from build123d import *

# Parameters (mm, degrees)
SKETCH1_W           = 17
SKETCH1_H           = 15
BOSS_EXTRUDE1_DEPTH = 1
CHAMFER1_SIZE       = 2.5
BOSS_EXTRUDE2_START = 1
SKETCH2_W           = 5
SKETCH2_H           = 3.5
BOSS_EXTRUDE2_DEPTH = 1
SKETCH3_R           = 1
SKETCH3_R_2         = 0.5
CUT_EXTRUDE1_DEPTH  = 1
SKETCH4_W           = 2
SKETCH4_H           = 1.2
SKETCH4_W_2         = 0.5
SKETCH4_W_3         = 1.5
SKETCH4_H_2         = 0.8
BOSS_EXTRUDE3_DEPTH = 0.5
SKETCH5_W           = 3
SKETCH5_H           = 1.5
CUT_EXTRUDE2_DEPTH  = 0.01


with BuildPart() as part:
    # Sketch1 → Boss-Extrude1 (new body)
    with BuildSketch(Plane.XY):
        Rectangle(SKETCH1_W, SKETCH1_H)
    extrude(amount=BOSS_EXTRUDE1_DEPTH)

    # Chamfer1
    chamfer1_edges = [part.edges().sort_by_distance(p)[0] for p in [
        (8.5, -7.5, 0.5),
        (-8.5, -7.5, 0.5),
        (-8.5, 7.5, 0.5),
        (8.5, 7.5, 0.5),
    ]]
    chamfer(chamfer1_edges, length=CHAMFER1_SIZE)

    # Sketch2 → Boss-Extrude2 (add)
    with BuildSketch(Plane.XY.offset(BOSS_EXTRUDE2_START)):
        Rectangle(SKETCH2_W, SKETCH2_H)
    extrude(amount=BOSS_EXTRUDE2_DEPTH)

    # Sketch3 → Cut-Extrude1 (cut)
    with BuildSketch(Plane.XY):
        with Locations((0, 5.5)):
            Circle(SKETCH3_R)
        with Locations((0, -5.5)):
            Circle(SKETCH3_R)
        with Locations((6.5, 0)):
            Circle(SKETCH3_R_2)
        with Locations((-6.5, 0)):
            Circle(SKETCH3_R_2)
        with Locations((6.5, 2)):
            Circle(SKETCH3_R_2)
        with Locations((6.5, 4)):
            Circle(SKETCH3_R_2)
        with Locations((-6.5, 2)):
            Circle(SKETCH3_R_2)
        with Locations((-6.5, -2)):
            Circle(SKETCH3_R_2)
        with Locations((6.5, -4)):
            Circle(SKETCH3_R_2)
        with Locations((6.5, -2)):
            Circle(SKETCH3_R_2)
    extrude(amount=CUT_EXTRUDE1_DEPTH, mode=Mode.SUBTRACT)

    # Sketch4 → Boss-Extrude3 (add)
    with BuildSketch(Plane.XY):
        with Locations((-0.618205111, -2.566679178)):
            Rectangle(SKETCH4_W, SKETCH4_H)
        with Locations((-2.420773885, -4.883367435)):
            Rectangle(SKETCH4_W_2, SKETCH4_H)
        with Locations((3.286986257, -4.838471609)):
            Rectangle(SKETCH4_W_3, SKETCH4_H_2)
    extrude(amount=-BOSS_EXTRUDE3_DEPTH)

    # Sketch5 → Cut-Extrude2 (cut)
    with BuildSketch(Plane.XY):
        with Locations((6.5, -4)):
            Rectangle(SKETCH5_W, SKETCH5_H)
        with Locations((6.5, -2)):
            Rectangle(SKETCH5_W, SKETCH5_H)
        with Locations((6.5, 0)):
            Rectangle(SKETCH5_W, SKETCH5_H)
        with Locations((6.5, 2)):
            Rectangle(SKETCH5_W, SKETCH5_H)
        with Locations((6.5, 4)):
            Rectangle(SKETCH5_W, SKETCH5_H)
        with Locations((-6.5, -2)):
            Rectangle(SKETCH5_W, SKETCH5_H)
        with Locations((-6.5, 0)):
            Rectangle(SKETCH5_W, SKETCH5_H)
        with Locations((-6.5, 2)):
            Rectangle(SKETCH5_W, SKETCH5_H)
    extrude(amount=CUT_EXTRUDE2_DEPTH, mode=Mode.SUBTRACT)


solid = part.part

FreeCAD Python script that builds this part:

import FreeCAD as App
import Part
import Sketcher
from FreeCAD import Vector
Q = App.Units.Quantity


def edges_at(feature, points):
    """Names of the edges that pass closest to the given points."""
    edges = feature.Shape.Edges
    near = lambda p: min(range(len(edges)), key=lambda i: edges[i].distToShape(Part.Vertex(*p))[0])
    return sorted({f"Edge{near(p) + 1}" for p in points})


def add_polygon(sketch, points):
    """Adds a closed chain of lines whose ends are joined by coincident constraints."""
    first, n = sketch.GeometryCount, len(points)
    for a, b in zip(points, points[1:] + points[:1]):
        sketch.addGeometry(Part.LineSegment(App.Vector(*a, 0), App.Vector(*b, 0)), False)
    for i in range(n):
        sketch.addConstraint(Sketcher.Constraint("Coincident", first + i, 2, first + (i + 1) % n, 1))

doc = App.newDocument("Part")
params = doc.addObject("Spreadsheet::Sheet", "Params")
for row, (alias, value) in enumerate([
    ("sketch1_width", "17 mm"),
    ("sketch1_height", "15 mm"),
    ("pad1_length", "1 mm"),
    ("chamfer_size", "2.5 mm"),
    ("sketch2_width", "5 mm"),
    ("sketch2_height", "3.5 mm"),
    ("pad2_length", "1 mm"),
    ("sketch3_diameter", "2 mm"),
    ("sketch3_diameter2", "1 mm"),
    ("pocket1_length", "1 mm"),
    ("sketch4_width", "2 mm"),
    ("sketch4_width2", "0.5 mm"),
    ("sketch4_width3", "1.5 mm"),
    ("sketch4_height", "1.2 mm"),
    ("sketch4_height2", "0.8 mm"),
    ("pad3_length", "0.5 mm"),
    ("sketch5_width", "3 mm"),
    ("sketch5_height", "1.5 mm"),
    ("pocket2_length", "0.01 mm"),
], start=1):
    params.set(f"A{row}", alias)
    params.set(f"B{row}", "=" + value)
    params.setAlias(f"B{row}", alias)

body = doc.addObject("PartDesign::Body", "Body")

# Sketch on XY plane
sketch1 = body.newObject("Sketcher::SketchObject", "Sketch")
sketch1.AttachmentSupport = (doc.getObject("XY_Plane"), [""])
sketch1.MapMode = "FlatFace"
add_polygon(sketch1, [(-8.5, 7.5), (-8.5, -7.5), (8.5, -7.5), (8.5, 7.5)])  # lines 0-3
sketch1.addConstraint(Sketcher.Constraint("Vertical", 0))
sketch1.addConstraint(Sketcher.Constraint("Horizontal", 1))
sketch1.addConstraint(Sketcher.Constraint("Vertical", 2))
sketch1.addConstraint(Sketcher.Constraint("Horizontal", 3))
sketch1.addConstraint(Sketcher.Constraint("Symmetric", 0, 2, 2, 2, -1, 1))
sketch1.addConstraint(Sketcher.Constraint("DistanceX", 1, 1, 1, 2, Q("17 mm")))
sketch1.addConstraint(Sketcher.Constraint("DistanceY", 0, 2, 0, 1, Q("15 mm")))
sketch1.setExpression("Constraints[9]", "Params.sketch1_width")
sketch1.setExpression("Constraints[10]", "Params.sketch1_height")
pad1 = body.newObject("PartDesign::Pad", "Pad")
pad1.Profile = sketch1
pad1.setExpression("Length", "Params.pad1_length")
doc.recompute()

chamfer = body.newObject("PartDesign::Chamfer", "Chamfer")
chamfer.Base = (pad1, edges_at(pad1, [
    (8.5, -7.5, 0.5),
    (-8.5, -7.5, 0.5),
    (-8.5, 7.5, 0.5),
    (8.5, 7.5, 0.5),
]))
chamfer.setExpression("Size", "Params.chamfer_size")

# Sketch on XY plane
sketch2 = body.newObject("Sketcher::SketchObject", "Sketch001")
sketch2.AttachmentSupport = (doc.getObject("XY_Plane"), [""])
sketch2.MapMode = "FlatFace"
sketch2.AttachmentOffset = App.Placement(Vector(0, 0, 1), App.Rotation())
add_polygon(sketch2, [(-2.5, 1.75), (-2.5, -1.75), (2.5, -1.75), (2.5, 1.75)])  # lines 0-3
sketch2.addConstraint(Sketcher.Constraint("Vertical", 0))
sketch2.addConstraint(Sketcher.Constraint("Horizontal", 1))
sketch2.addConstraint(Sketcher.Constraint("Vertical", 2))
sketch2.addConstraint(Sketcher.Constraint("Horizontal", 3))
sketch2.addConstraint(Sketcher.Constraint("Symmetric", 0, 2, 2, 2, -1, 1))
sketch2.addConstraint(Sketcher.Constraint("DistanceX", 1, 1, 1, 2, Q("5 mm")))
sketch2.addConstraint(Sketcher.Constraint("DistanceY", 0, 2, 0, 1, Q("3.5 mm")))
sketch2.setExpression("Constraints[9]", "Params.sketch2_width")
sketch2.setExpression("Constraints[10]", "Params.sketch2_height")
pad2 = body.newObject("PartDesign::Pad", "Pad001")
pad2.Profile = sketch2
pad2.setExpression("Length", "Params.pad2_length")

# Sketch on XY plane
sketch3 = body.newObject("Sketcher::SketchObject", "Sketch002")
sketch3.AttachmentSupport = (doc.getObject("XY_Plane"), [""])
sketch3.MapMode = "FlatFace"
sketch3.addGeometry(Part.Circle(Vector(0, 5.5, 0), Vector(0, 0, 1), 1), False)
sketch3.addGeometry(Part.Circle(Vector(0, -5.5, 0), Vector(0, 0, 1), 1), False)
sketch3.addGeometry(Part.Circle(Vector(6.5, 0, 0), Vector(0, 0, 1), 0.5), False)
sketch3.addGeometry(Part.Circle(Vector(-6.5, 0, 0), Vector(0, 0, 1), 0.5), False)
sketch3.addGeometry(Part.Circle(Vector(6.5, 2, 0), Vector(0, 0, 1), 0.5), False)
sketch3.addGeometry(Part.Circle(Vector(6.5, 4, 0), Vector(0, 0, 1), 0.5), False)
sketch3.addGeometry(Part.Circle(Vector(-6.5, 2, 0), Vector(0, 0, 1), 0.5), False)
sketch3.addGeometry(Part.Circle(Vector(-6.5, -2, 0), Vector(0, 0, 1), 0.5), False)
sketch3.addGeometry(Part.Circle(Vector(6.5, -4, 0), Vector(0, 0, 1), 0.5), False)
sketch3.addGeometry(Part.Circle(Vector(6.5, -2, 0), Vector(0, 0, 1), 0.5), False)
sketch3.addConstraint(Sketcher.Constraint("Equal", 0, 1))
sketch3.addConstraint(Sketcher.Constraint("Equal", 2, 3))
sketch3.addConstraint(Sketcher.Constraint("Equal", 3, 4))
sketch3.addConstraint(Sketcher.Constraint("Equal", 4, 5))
sketch3.addConstraint(Sketcher.Constraint("Equal", 5, 6))
sketch3.addConstraint(Sketcher.Constraint("Equal", 6, 7))
sketch3.addConstraint(Sketcher.Constraint("Equal", 7, 8))
sketch3.addConstraint(Sketcher.Constraint("Equal", 8, 9))
sketch3.addConstraint(Sketcher.Constraint("Symmetric", 0, 3, 1, 3, -1, 1))
sketch3.addConstraint(Sketcher.Constraint("Symmetric", 2, 3, 3, 3, -1, 1))
sketch3.addConstraint(Sketcher.Constraint("Symmetric", 4, 3, 7, 3, -1, 1))
sketch3.addConstraint(Sketcher.Constraint("Symmetric", 6, 3, 9, 3, -1, 1))
sketch3.addConstraint(Sketcher.Constraint("Symmetric", 4, 3, 6, 3, -2))
sketch3.addConstraint(Sketcher.Constraint("Symmetric", 5, 3, 8, 3, -1))
sketch3.addConstraint(Sketcher.Constraint("PointOnObject", 0, 3, -2))
sketch3.addConstraint(Sketcher.Constraint("PointOnObject", 2, 3, -1))
sketch3.addConstraint(Sketcher.Constraint("Vertical", 2, 3, 4, 3))
sketch3.addConstraint(Sketcher.Constraint("Vertical", 4, 3, 5, 3))
sketch3.addConstraint(Sketcher.Constraint("Diameter", 0, Q("2 mm")))
sketch3.addConstraint(Sketcher.Constraint("Diameter", 2, Q("1 mm")))
sketch3.addConstraint(Sketcher.Constraint("DistanceY", -1, 1, 4, 3, Q("2 mm")))
sketch3.addConstraint(Sketcher.Constraint("DistanceY", -1, 1, 5, 3, Q("4 mm")))
sketch3.addConstraint(Sketcher.Constraint("DistanceY", 1, 3, 0, 3, Q("11 mm")))
sketch3.addConstraint(Sketcher.Constraint("DistanceX", 3, 3, 2, 3, Q("13 mm")))
sketch3.setExpression("Constraints[18]", "Params.sketch3_diameter")
sketch3.setExpression("Constraints[19]", "Params.sketch3_diameter2")
pocket1 = body.newObject("PartDesign::Pocket", "Pocket")
pocket1.Profile = sketch3
pocket1.setExpression("Length", "Params.pocket1_length")
pocket1.Reversed = True

# Sketch on XY plane
sketch4 = body.newObject("Sketcher::SketchObject", "Sketch003")
sketch4.AttachmentSupport = (doc.getObject("XY_Plane"), [""])
sketch4.MapMode = "FlatFace"
add_polygon(sketch4, [(-1.618205, -1.966679), (-1.618205, -3.166679), (0.381795, -3.166679), (0.381795, -1.966679)])  # lines 0-3
add_polygon(sketch4, [(-2.670774, -4.283367), (-2.670774, -5.483367), (-2.170774, -5.483367), (-2.170774, -4.283367)])  # lines 4-7
add_polygon(sketch4, [(2.536986, -4.438472), (2.536986, -5.238472), (4.036986, -5.238472), (4.036986, -4.438472)])  # lines 8-11
sketch4.addConstraint(Sketcher.Constraint("Vertical", 0))
sketch4.addConstraint(Sketcher.Constraint("Horizontal", 1))
sketch4.addConstraint(Sketcher.Constraint("Vertical", 2))
sketch4.addConstraint(Sketcher.Constraint("Horizontal", 3))
sketch4.addConstraint(Sketcher.Constraint("Vertical", 4))
sketch4.addConstraint(Sketcher.Constraint("Horizontal", 5))
sketch4.addConstraint(Sketcher.Constraint("Vertical", 6))
sketch4.addConstraint(Sketcher.Constraint("Horizontal", 7))
sketch4.addConstraint(Sketcher.Constraint("Vertical", 8))
sketch4.addConstraint(Sketcher.Constraint("Horizontal", 9))
sketch4.addConstraint(Sketcher.Constraint("Vertical", 10))
sketch4.addConstraint(Sketcher.Constraint("Horizontal", 11))
sketch4.addConstraint(Sketcher.Constraint("Equal", 2, 4))
sketch4.addConstraint(Sketcher.Constraint("DistanceX", 1, 1, 1, 2, Q("2 mm")))
sketch4.addConstraint(Sketcher.Constraint("DistanceX", 5, 1, 5, 2, Q("0.5 mm")))
sketch4.addConstraint(Sketcher.Constraint("DistanceX", 9, 1, 9, 2, Q("1.5 mm")))
sketch4.addConstraint(Sketcher.Constraint("DistanceY", 0, 2, 0, 1, Q("1.2 mm")))
sketch4.addConstraint(Sketcher.Constraint("DistanceY", 8, 2, 8, 1, Q("0.8 mm")))
sketch4.addConstraint(Sketcher.Constraint("DistanceY", 0, 2, -1, 1, Q("3.166679 mm")))
sketch4.addConstraint(Sketcher.Constraint("DistanceY", 8, 2, -1, 1, Q("5.238472 mm")))
sketch4.addConstraint(Sketcher.Constraint("DistanceX", 4, 2, 0, 2, Q("1.052569 mm")))
sketch4.addConstraint(Sketcher.Constraint("DistanceY", 4, 2, 0, 2, Q("2.316688 mm")))
sketch4.addConstraint(Sketcher.Constraint("DistanceX", 1, 2, 8, 2, Q("2.155191 mm")))
sketch4.addConstraint(Sketcher.Constraint("DistanceX", 0, 2, -1, 1, Q("1.618205 mm")))
sketch4.setExpression("Constraints[25]", "Params.sketch4_width")
sketch4.setExpression("Constraints[26]", "Params.sketch4_width2")
sketch4.setExpression("Constraints[27]", "Params.sketch4_width3")
sketch4.setExpression("Constraints[28]", "Params.sketch4_height")
sketch4.setExpression("Constraints[29]", "Params.sketch4_height2")
pad3 = body.newObject("PartDesign::Pad", "Pad002")
pad3.Profile = sketch4
pad3.setExpression("Length", "Params.pad3_length")
pad3.Reversed = True

# Sketch on XY plane
sketch5 = body.newObject("Sketcher::SketchObject", "Sketch004")
sketch5.AttachmentSupport = (doc.getObject("XY_Plane"), [""])
sketch5.MapMode = "FlatFace"
add_polygon(sketch5, [(5, -3.25), (5, -4.75), (8, -4.75), (8, -3.25)])  # lines 0-3
add_polygon(sketch5, [(5, -1.25), (5, -2.75), (8, -2.75), (8, -1.25)])  # lines 4-7
add_polygon(sketch5, [(5, 0.75), (5, -0.75), (8, -0.75), (8, 0.75)])  # lines 8-11
add_polygon(sketch5, [(5, 2.75), (5, 1.25), (8, 1.25), (8, 2.75)])  # lines 12-15
add_polygon(sketch5, [(5, 4.75), (5, 3.25), (8, 3.25), (8, 4.75)])  # lines 16-19
add_polygon(sketch5, [(-8, -1.25), (-8, -2.75), (-5, -2.75), (-5, -1.25)])  # lines 20-23
add_polygon(sketch5, [(-8, 0.75), (-8, -0.75), (-5, -0.75), (-5, 0.75)])  # lines 24-27
add_polygon(sketch5, [(-8, 2.75), (-8, 1.25), (-5, 1.25), (-5, 2.75)])  # lines 28-31
sketch5.addConstraint(Sketcher.Constraint("Vertical", 0))
sketch5.addConstraint(Sketcher.Constraint("Horizontal", 1))
sketch5.addConstraint(Sketcher.Constraint("Vertical", 2))
sketch5.addConstraint(Sketcher.Constraint("Horizontal", 3))
sketch5.addConstraint(Sketcher.Constraint("Vertical", 4))
sketch5.addConstraint(Sketcher.Constraint("Horizontal", 5))
sketch5.addConstraint(Sketcher.Constraint("Vertical", 6))
sketch5.addConstraint(Sketcher.Constraint("Horizontal", 7))
sketch5.addConstraint(Sketcher.Constraint("Vertical", 8))
sketch5.addConstraint(Sketcher.Constraint("Horizontal", 9))
sketch5.addConstraint(Sketcher.Constraint("Vertical", 10))
sketch5.addConstraint(Sketcher.Constraint("Horizontal", 11))
sketch5.addConstraint(Sketcher.Constraint("Vertical", 12))
sketch5.addConstraint(Sketcher.Constraint("Horizontal", 13))
sketch5.addConstraint(Sketcher.Constraint("Vertical", 14))
sketch5.addConstraint(Sketcher.Constraint("Horizontal", 15))
sketch5.addConstraint(Sketcher.Constraint("Vertical", 16))
sketch5.addConstraint(Sketcher.Constraint("Horizontal", 17))
sketch5.addConstraint(Sketcher.Constraint("Vertical", 18))
sketch5.addConstraint(Sketcher.Constraint("Horizontal", 19))
sketch5.addConstraint(Sketcher.Constraint("Vertical", 20))
sketch5.addConstraint(Sketcher.Constraint("Horizontal", 21))
sketch5.addConstraint(Sketcher.Constraint("Vertical", 22))
sketch5.addConstraint(Sketcher.Constraint("Horizontal", 23))
sketch5.addConstraint(Sketcher.Constraint("Vertical", 24))
sketch5.addConstraint(Sketcher.Constraint("Horizontal", 25))
sketch5.addConstraint(Sketcher.Constraint("Vertical", 26))
sketch5.addConstraint(Sketcher.Constraint("Horizontal", 27))
sketch5.addConstraint(Sketcher.Constraint("Vertical", 28))
sketch5.addConstraint(Sketcher.Constraint("Horizontal", 29))
sketch5.addConstraint(Sketcher.Constraint("Vertical", 30))
sketch5.addConstraint(Sketcher.Constraint("Horizontal", 31))
sketch5.addConstraint(Sketcher.Constraint("Symmetric", 14, 2, 20, 2, -1, 1))
sketch5.addConstraint(Sketcher.Constraint("Symmetric", 12, 2, 22, 2, -1, 1))
sketch5.addConstraint(Sketcher.Constraint("Symmetric", 10, 2, 24, 2, -1, 1))
sketch5.addConstraint(Sketcher.Constraint("Symmetric", 8, 2, 26, 2, -1, 1))
sketch5.addConstraint(Sketcher.Constraint("Symmetric", 6, 2, 28, 2, -1, 1))
sketch5.addConstraint(Sketcher.Constraint("Symmetric", 4, 2, 30, 2, -1, 1))
sketch5.addConstraint(Sketcher.Constraint("Symmetric", 5, 2, 20, 2, -2))
sketch5.addConstraint(Sketcher.Constraint("Symmetric", 7, 2, 22, 2, -2))
sketch5.addConstraint(Sketcher.Constraint("Symmetric", 3, 2, 16, 2, -1))
sketch5.addConstraint(Sketcher.Constraint("Symmetric", 1, 2, 18, 2, -1))
sketch5.addConstraint(Sketcher.Constraint("Horizontal", 9, 2, 24, 2))
sketch5.addConstraint(Sketcher.Constraint("Vertical", 3, 2, 4, 2))
sketch5.addConstraint(Sketcher.Constraint("Vertical", 2, 2, 5, 2))
sketch5.addConstraint(Sketcher.Constraint("Vertical", 7, 2, 8, 2))
sketch5.addConstraint(Sketcher.Constraint("Vertical", 6, 2, 9, 2))
sketch5.addConstraint(Sketcher.Constraint("Equal", 2, 4))
sketch5.addConstraint(Sketcher.Constraint("Equal", 6, 8))
sketch5.addConstraint(Sketcher.Constraint("DistanceX", 1, 1, 1, 2, Q("3 mm")))
sketch5.addConstraint(Sketcher.Constraint("DistanceY", 0, 2, 0, 1, Q("1.5 mm")))
sketch5.addConstraint(Sketcher.Constraint("DistanceX", -1, 1, 0, 2, Q("5 mm")))
sketch5.addConstraint(Sketcher.Constraint("DistanceY", 0, 2, 4, 2, Q("2 mm")))
sketch5.addConstraint(Sketcher.Constraint("DistanceY", 4, 2, 8, 2, Q("2 mm")))
sketch5.setExpression("Constraints[81]", "Params.sketch5_width")
sketch5.setExpression("Constraints[82]", "Params.sketch5_height")
pocket2 = body.newObject("PartDesign::Pocket", "Pocket001")
pocket2.Profile = sketch5
pocket2.setExpression("Length", "Params.pocket2_length")
pocket2.Reversed = True

doc.recompute()
